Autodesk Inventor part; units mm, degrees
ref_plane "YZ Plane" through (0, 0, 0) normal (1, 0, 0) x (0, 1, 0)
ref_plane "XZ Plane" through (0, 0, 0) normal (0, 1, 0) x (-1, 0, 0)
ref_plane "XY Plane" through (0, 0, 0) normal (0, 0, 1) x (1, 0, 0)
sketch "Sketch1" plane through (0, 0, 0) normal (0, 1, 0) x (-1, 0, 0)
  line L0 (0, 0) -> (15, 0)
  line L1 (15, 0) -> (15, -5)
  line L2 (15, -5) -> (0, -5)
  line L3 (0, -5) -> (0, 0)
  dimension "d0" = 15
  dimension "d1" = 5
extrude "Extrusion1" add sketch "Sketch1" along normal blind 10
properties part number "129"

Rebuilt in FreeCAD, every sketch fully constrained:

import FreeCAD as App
import Part
import Sketcher
from FreeCAD import Vector
Q = App.Units.Quantity

doc = App.newDocument("Part")
body = doc.addObject("PartDesign::Body", "Body")

# Sketch on XZ plane
sketch1 = body.newObject("Sketcher::SketchObject", "Sketch")
sketch1.AttachmentSupport = (doc.getObject("XZ_Plane"), [""])
sketch1.MapMode = "FlatFace"
sketch1.addGeometry([
    Part.LineSegment(Vector(-15, 0, 0), Vector(0, 0, 0)),
    Part.LineSegment(Vector(0, 0, 0), Vector(0, -5, 0)),
    Part.LineSegment(Vector(0, -5, 0), Vector(-15, -5, 0)),
    Part.LineSegment(Vector(-15, -5, 0), Vector(-15, 0, 0)),
], False)
sketch1.addConstraint([
    Sketcher.Constraint("Coincident", 0, 2, 1, 1),
    Sketcher.Constraint("Coincident", 1, 2, 2, 1),
    Sketcher.Constraint("Coincident", 2, 2, 3, 1),
    Sketcher.Constraint("Coincident", 3, 2, 0, 1),
    Sketcher.Constraint("Horizontal", 0),
    Sketcher.Constraint("Vertical", 1),
    Sketcher.Constraint("Horizontal", 2),
    Sketcher.Constraint("Vertical", 3),
    Sketcher.Constraint("Coincident", 0, 2, -1, 1),
    Sketcher.Constraint("DistanceX", 0, 1, 0, 2, Q("15 mm")),
    Sketcher.Constraint("DistanceY", 1, 2, 1, 1, Q("5 mm")),
])
pad1 = body.newObject("PartDesign::Pad", "Pad")
pad1.Profile = sketch1
pad1.Length = 10
pad1.Reversed = True

doc.recompute()
